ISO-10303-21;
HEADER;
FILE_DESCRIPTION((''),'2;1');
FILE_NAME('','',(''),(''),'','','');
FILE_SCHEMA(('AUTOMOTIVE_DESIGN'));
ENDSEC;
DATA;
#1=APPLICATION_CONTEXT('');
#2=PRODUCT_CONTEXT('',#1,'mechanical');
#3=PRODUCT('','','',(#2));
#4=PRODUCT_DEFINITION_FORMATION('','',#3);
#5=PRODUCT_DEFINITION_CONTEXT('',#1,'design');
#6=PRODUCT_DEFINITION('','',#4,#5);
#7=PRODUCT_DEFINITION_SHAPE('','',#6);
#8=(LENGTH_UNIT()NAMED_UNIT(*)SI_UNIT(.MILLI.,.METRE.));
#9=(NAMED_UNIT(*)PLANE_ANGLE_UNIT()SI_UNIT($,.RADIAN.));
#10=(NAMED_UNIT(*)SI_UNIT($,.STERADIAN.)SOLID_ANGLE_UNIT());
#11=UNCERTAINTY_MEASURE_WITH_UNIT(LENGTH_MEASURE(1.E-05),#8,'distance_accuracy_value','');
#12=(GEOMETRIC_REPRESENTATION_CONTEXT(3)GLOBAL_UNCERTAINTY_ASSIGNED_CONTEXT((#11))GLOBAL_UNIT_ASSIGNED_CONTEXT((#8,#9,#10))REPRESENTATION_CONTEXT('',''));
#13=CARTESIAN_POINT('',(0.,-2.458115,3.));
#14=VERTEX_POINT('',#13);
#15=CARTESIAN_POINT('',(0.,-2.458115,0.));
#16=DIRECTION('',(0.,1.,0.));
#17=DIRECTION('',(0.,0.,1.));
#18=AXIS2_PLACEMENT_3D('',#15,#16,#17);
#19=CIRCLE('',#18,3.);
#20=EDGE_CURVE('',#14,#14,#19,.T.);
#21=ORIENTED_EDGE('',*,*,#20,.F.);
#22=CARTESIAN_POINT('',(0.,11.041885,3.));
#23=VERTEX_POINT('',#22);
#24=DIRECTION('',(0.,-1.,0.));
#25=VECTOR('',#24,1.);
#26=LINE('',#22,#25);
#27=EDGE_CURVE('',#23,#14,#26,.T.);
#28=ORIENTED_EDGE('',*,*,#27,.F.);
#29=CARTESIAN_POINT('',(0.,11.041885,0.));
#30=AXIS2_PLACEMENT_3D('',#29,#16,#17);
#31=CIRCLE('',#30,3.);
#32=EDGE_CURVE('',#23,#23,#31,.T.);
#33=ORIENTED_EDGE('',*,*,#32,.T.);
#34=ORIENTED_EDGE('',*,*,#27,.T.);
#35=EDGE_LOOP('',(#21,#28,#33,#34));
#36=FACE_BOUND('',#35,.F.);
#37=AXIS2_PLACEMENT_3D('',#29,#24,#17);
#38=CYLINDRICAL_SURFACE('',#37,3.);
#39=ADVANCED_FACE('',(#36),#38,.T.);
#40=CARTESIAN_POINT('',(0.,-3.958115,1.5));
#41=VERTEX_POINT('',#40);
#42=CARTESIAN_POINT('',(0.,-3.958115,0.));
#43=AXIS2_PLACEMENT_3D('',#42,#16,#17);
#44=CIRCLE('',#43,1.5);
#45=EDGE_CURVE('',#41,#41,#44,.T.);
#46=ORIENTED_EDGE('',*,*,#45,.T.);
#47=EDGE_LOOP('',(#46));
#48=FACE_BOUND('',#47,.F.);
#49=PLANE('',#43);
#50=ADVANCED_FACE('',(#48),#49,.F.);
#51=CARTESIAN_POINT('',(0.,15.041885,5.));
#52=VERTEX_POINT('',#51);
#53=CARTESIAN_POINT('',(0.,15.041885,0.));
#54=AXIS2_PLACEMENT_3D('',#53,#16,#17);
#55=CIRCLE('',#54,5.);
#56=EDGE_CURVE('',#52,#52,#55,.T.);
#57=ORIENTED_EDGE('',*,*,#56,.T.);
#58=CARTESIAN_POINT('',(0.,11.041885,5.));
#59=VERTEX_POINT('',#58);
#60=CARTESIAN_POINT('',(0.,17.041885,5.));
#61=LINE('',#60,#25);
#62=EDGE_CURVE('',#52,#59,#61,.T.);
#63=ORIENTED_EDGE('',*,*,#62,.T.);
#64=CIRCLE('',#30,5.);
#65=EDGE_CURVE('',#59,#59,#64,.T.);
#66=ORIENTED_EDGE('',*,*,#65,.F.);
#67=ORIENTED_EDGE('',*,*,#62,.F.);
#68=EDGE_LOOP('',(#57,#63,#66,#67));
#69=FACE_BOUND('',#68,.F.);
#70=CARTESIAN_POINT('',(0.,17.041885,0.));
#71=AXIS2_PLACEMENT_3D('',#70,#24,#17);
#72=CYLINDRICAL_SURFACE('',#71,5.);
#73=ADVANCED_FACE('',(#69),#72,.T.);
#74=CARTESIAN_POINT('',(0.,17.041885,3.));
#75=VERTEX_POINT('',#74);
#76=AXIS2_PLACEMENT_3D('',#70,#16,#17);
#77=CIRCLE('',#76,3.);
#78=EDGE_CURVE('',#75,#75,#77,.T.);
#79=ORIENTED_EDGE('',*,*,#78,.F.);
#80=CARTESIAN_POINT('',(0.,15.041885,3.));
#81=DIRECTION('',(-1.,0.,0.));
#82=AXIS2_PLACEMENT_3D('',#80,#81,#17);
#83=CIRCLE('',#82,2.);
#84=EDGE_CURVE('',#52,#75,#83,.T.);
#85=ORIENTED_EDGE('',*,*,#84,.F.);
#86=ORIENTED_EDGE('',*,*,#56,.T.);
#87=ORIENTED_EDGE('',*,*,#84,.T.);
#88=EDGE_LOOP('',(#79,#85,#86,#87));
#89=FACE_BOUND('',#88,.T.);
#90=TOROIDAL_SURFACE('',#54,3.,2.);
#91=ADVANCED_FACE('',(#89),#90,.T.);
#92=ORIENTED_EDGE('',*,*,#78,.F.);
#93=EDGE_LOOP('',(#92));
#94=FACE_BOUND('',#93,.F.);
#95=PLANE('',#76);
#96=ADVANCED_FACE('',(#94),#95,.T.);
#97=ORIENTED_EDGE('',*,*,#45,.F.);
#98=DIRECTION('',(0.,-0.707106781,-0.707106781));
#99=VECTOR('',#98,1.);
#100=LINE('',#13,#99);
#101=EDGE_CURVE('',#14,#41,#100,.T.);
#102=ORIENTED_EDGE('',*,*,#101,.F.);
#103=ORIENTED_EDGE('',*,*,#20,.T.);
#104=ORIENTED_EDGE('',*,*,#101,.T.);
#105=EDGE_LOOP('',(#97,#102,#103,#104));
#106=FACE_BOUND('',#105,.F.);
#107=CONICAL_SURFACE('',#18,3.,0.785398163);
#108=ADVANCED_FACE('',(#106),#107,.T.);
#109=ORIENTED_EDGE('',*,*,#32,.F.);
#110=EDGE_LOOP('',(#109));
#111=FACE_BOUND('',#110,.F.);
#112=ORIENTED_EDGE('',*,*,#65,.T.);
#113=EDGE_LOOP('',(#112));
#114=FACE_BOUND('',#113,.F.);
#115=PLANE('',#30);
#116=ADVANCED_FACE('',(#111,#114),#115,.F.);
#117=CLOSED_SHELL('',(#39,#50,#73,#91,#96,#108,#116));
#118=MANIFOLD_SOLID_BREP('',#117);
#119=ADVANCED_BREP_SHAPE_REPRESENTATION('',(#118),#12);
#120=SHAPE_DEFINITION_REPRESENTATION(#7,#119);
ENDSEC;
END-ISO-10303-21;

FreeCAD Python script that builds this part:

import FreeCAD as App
import Part
import Sketcher
Q = App.Units.Quantity


def edges_at(feature, points):
    """Names of the edges that pass closest to the given points."""
    edges = feature.Shape.Edges
    near = lambda p: min(range(len(edges)), key=lambda i: edges[i].distToShape(Part.Vertex(*p))[0])
    return sorted({f"Edge{near(p) + 1}" for p in points})

doc = App.newDocument("Part")
body = doc.addObject("PartDesign::Body", "Body")

# Sketch on YZ plane
sketch1 = body.newObject("Sketcher::SketchObject", "Sketch")
sketch1.AttachmentSupport = (doc.getObject("YZ_Plane"), [""])
sketch1.MapMode = "FlatFace"
sketch1.addGeometry(Part.LineSegment(App.Vector(-4, 0, 0), App.Vector(17, 0, 0)), False)
sketch1.addGeometry(Part.LineSegment(App.Vector(17, 0, 0), App.Vector(17, 5, 0)), False)
sketch1.addGeometry(Part.LineSegment(App.Vector(17, 5, 0), App.Vector(11, 5, 0)), False)
sketch1.addGeometry(Part.LineSegment(App.Vector(11, 5, 0), App.Vector(11, 3, 0)), False)
sketch1.addGeometry(Part.LineSegment(App.Vector(11, 3, 0), App.Vector(-4, 3, 0)), False)
sketch1.addGeometry(Part.LineSegment(App.Vector(-4, 3, 0), App.Vector(-4, 0, 0)), False)
sketch1.addConstraint(Sketcher.Constraint("Coincident", 0, 2, 1, 1))
sketch1.addConstraint(Sketcher.Constraint("Coincident", 1, 2, 2, 1))
sketch1.addConstraint(Sketcher.Constraint("Coincident", 2, 2, 3, 1))
sketch1.addConstraint(Sketcher.Constraint("Coincident", 3, 2, 4, 1))
sketch1.addConstraint(Sketcher.Constraint("Coincident", 4, 2, 5, 1))
sketch1.addConstraint(Sketcher.Constraint("Coincident", 5, 2, 0, 1))
sketch1.addConstraint(Sketcher.Constraint("Horizontal", 0))
sketch1.addConstraint(Sketcher.Constraint("Vertical", 1))
sketch1.addConstraint(Sketcher.Constraint("Horizontal", 2))
sketch1.addConstraint(Sketcher.Constraint("Vertical", 3))
sketch1.addConstraint(Sketcher.Constraint("Horizontal", 4))
sketch1.addConstraint(Sketcher.Constraint("Vertical", 5))
sketch1.addConstraint(Sketcher.Constraint("PointOnObject", 0, 2, -1))
sketch1.addConstraint(Sketcher.Constraint("DistanceX", 0, 1, 0, 2, Q("21 mm")))
sketch1.addConstraint(Sketcher.Constraint("DistanceX", 2, 2, 2, 1, Q("6 mm")))
sketch1.addConstraint(Sketcher.Constraint("DistanceY", 1, 1, 1, 2, Q("5 mm")))
sketch1.addConstraint(Sketcher.Constraint("DistanceY", 3, 2, 3, 1, Q("2 mm")))
sketch1.addConstraint(Sketcher.Constraint("DistanceX", -1, 1, 0, 2, Q("17.041885 mm")))
revolution = body.newObject("PartDesign::Revolution", "Revolution")
revolution.Profile = sketch1
revolution.ReferenceAxis = (sketch1, ["H_Axis"])
revolution.Angle = 360
doc.recompute()

chamfer = body.newObject("PartDesign::Chamfer", "Chamfer")
chamfer.Base = (revolution, edges_at(revolution, [(0, -3.958, -3)]))
chamfer.Size = 1.5
doc.recompute()

fillet = body.newObject("PartDesign::Fillet", "Fillet")
fillet.Base = (chamfer, edges_at(chamfer, [(0, 17.042, -5)]))
fillet.Radius = 2

doc.recompute()
